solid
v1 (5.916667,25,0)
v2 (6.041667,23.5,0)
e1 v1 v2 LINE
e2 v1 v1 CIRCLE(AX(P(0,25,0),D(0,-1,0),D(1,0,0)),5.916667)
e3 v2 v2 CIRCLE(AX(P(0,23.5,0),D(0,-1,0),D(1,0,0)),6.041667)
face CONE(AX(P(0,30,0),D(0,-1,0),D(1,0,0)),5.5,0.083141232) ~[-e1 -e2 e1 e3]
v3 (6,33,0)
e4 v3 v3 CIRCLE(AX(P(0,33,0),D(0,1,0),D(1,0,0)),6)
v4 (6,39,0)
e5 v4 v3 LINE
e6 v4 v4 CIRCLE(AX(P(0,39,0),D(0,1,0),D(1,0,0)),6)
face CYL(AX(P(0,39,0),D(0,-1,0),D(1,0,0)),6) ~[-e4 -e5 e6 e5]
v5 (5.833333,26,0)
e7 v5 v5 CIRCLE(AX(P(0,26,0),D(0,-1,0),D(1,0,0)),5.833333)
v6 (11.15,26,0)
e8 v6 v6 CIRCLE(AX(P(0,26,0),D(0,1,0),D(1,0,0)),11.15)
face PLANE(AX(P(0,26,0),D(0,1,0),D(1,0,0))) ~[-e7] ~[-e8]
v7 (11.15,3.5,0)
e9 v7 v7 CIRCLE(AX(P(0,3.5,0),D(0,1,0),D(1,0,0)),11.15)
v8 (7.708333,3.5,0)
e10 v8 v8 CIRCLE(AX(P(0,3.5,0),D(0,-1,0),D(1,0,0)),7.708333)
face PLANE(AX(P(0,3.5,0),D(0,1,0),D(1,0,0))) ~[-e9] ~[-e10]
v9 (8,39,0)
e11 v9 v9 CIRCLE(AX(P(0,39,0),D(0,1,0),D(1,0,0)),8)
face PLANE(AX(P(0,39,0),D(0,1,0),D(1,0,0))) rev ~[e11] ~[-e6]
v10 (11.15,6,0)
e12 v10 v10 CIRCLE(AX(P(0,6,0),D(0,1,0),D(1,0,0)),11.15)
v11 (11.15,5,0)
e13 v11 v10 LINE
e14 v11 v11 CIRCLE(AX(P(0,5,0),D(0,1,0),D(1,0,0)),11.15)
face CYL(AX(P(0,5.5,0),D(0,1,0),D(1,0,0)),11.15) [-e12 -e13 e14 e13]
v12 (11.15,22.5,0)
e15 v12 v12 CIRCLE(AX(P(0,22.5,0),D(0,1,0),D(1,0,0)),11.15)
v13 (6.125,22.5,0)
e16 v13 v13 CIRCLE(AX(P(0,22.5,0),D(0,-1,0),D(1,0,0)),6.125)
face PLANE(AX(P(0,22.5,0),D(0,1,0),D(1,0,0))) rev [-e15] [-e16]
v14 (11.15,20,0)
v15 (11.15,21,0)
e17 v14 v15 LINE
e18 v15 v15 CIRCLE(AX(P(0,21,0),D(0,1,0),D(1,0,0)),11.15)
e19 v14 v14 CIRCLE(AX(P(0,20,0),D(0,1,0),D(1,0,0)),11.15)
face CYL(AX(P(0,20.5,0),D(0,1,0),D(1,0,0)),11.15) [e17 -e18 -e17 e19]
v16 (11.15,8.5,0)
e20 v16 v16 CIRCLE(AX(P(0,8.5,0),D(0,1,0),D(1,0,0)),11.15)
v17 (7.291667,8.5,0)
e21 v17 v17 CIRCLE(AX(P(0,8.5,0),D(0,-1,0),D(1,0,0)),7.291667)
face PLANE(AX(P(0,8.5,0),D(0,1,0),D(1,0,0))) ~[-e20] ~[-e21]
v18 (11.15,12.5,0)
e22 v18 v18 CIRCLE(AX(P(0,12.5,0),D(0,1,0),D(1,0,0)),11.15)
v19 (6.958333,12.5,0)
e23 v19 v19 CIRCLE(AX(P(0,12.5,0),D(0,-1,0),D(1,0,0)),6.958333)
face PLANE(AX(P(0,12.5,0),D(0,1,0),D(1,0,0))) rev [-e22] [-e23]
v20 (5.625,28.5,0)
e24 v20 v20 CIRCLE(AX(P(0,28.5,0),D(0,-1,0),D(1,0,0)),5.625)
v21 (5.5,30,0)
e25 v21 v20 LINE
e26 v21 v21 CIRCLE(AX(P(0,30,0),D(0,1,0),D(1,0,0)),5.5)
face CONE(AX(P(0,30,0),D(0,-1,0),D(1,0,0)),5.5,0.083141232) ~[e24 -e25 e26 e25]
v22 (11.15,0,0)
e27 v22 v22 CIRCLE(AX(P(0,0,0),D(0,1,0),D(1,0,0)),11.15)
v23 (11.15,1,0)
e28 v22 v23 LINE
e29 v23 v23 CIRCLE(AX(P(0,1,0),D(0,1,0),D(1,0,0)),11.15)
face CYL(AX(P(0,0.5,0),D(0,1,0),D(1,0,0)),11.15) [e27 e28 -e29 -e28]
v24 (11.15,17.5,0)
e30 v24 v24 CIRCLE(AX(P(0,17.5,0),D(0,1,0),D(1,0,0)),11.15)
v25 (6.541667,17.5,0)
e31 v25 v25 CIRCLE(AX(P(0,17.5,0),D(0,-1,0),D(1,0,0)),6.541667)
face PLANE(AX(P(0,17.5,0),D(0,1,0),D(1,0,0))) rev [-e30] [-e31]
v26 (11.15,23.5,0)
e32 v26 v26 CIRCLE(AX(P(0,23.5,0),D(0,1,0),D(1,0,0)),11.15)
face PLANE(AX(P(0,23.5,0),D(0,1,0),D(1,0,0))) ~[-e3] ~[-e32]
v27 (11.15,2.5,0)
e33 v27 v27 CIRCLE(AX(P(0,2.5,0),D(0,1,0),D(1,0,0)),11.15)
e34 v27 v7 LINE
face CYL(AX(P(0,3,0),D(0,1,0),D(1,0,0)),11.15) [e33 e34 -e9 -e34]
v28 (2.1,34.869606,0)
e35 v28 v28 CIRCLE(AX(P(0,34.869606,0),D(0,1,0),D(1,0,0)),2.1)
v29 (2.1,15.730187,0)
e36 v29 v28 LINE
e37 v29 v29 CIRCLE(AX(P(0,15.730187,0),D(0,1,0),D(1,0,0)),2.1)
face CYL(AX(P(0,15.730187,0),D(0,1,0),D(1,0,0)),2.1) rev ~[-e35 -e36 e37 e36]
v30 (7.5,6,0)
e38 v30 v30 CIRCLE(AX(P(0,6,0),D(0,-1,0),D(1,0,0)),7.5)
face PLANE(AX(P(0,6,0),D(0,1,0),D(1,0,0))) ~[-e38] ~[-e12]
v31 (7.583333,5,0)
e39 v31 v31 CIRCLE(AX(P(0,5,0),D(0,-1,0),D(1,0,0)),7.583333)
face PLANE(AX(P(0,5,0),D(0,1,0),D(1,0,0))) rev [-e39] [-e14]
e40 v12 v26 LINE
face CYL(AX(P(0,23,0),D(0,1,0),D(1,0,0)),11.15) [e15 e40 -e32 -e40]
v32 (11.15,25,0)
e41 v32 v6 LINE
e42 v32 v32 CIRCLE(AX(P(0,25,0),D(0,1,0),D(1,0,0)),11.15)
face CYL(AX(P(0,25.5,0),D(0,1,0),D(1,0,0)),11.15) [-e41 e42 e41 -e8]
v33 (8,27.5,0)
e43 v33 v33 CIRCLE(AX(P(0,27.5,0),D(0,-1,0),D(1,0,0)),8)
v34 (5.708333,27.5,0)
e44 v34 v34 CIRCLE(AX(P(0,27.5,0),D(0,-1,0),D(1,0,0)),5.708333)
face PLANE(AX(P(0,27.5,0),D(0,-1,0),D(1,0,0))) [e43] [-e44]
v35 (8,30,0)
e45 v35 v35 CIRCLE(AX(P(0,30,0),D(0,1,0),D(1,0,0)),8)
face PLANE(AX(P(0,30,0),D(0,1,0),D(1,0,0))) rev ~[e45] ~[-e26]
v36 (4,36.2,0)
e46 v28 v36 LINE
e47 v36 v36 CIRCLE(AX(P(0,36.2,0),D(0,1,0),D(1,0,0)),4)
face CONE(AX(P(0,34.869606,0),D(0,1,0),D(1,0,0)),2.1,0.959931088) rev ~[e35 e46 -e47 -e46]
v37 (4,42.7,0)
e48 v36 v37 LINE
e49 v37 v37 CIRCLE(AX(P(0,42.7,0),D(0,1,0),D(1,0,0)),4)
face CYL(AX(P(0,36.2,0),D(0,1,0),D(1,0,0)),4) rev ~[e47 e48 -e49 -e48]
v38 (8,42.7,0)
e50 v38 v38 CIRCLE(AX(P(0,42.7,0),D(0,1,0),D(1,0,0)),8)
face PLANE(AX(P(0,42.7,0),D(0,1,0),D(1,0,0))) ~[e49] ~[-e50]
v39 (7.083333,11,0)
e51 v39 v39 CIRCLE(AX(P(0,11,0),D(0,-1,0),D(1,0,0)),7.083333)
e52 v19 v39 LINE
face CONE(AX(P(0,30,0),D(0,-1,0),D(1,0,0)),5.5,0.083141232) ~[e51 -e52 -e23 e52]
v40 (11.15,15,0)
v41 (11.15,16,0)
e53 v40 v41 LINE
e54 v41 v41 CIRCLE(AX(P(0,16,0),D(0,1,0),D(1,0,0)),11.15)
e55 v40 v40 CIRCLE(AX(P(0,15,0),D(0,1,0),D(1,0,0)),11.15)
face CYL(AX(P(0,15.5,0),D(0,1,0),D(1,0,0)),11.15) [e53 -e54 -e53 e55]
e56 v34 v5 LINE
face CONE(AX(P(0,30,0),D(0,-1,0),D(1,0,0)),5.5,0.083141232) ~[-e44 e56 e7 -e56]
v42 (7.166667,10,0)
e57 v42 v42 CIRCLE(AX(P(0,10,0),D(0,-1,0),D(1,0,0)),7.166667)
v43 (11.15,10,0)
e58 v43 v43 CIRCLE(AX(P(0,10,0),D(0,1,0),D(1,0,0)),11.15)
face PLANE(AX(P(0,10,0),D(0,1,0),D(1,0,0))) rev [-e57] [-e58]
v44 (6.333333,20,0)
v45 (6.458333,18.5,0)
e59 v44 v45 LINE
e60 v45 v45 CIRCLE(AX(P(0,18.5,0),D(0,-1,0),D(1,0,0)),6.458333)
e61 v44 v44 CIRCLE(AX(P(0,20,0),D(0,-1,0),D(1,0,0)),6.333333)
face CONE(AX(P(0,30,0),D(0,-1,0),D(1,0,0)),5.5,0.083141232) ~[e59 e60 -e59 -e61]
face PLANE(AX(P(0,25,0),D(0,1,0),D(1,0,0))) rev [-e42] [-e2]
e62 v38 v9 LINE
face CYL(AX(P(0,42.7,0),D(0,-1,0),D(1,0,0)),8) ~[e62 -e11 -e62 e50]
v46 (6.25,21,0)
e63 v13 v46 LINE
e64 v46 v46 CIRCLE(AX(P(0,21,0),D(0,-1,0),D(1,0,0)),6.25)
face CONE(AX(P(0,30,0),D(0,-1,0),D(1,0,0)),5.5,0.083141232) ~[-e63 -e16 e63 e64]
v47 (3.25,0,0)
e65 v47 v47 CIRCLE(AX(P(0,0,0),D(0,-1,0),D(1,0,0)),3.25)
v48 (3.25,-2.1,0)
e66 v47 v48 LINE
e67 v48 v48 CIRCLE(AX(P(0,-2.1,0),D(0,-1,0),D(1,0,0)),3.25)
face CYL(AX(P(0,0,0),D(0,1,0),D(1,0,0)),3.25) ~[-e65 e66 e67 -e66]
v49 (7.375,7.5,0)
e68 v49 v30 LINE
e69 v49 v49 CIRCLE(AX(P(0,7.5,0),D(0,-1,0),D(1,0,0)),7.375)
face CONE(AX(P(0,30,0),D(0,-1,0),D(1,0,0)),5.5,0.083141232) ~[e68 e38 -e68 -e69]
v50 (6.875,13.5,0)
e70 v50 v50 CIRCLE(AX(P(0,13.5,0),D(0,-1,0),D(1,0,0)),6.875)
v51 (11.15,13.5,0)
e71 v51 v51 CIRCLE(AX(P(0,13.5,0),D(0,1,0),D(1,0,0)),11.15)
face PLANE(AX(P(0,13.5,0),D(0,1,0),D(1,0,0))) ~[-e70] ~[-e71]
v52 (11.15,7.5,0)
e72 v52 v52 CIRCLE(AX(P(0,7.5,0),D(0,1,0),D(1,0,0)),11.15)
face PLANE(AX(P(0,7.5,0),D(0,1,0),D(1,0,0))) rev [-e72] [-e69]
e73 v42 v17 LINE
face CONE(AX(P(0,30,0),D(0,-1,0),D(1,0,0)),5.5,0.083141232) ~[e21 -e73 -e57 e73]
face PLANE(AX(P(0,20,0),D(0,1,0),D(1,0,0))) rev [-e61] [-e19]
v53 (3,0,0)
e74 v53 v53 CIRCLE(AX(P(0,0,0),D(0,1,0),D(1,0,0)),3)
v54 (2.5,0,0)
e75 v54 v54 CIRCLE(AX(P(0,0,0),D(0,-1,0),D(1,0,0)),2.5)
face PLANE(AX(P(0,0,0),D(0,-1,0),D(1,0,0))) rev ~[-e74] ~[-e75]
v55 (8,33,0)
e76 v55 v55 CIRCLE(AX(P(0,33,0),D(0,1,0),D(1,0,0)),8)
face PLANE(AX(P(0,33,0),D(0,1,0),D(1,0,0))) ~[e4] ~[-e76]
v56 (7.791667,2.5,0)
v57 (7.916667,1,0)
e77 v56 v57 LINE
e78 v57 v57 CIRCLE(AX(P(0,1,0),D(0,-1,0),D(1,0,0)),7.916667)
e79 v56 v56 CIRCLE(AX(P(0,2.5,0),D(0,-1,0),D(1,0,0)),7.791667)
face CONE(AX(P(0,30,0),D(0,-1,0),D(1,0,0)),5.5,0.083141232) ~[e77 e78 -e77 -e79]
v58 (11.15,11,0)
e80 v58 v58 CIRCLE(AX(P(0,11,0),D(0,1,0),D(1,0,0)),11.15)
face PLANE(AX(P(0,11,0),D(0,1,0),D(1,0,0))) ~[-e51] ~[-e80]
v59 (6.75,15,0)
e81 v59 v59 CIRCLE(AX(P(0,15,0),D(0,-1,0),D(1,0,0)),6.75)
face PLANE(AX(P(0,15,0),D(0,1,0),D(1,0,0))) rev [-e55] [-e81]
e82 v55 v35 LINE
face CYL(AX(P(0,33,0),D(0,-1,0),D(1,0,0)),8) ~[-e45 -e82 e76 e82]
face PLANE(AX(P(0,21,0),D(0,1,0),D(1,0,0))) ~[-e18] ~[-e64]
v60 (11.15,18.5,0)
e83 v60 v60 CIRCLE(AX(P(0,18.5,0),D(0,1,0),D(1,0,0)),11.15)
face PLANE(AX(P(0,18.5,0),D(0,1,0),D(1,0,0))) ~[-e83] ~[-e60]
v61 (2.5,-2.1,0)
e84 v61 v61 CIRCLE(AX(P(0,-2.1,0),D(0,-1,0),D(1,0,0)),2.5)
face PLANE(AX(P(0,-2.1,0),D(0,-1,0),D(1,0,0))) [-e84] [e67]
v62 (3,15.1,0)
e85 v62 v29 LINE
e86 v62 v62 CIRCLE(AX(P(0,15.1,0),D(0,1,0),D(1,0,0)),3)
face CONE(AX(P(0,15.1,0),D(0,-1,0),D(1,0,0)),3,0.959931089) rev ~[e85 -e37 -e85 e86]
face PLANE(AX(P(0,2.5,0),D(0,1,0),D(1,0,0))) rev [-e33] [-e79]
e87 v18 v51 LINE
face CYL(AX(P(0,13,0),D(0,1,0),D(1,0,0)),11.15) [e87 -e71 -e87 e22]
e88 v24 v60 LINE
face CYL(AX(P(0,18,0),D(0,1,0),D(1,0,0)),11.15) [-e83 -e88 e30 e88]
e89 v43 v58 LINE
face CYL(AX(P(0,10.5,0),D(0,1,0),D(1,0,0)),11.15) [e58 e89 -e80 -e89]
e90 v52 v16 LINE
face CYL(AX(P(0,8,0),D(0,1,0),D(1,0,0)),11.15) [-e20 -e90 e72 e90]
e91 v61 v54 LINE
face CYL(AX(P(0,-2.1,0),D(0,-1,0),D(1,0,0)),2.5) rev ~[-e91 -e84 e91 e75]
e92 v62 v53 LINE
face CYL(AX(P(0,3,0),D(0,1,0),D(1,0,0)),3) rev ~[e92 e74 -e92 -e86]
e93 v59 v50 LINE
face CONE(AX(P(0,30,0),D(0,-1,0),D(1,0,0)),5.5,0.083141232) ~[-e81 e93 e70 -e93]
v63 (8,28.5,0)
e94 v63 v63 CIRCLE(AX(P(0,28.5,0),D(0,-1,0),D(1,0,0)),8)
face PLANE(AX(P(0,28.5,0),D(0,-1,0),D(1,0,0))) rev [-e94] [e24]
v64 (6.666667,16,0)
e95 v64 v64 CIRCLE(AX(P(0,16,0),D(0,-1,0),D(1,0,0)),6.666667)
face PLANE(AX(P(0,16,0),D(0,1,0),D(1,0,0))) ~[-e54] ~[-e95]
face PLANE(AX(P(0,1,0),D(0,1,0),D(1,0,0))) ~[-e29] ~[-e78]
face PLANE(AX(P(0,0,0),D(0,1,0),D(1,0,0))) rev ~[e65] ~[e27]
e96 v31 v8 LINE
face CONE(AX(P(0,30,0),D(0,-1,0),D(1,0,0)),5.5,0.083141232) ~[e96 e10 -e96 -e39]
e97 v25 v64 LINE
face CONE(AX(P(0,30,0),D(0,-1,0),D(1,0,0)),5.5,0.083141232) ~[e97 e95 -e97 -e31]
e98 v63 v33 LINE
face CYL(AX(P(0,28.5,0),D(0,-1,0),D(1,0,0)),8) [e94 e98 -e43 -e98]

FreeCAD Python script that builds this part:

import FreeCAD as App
import Part
import Sketcher
Q = App.Units.Quantity


def add_polygon(sketch, points):
    """Adds a closed chain of lines whose ends are joined by coincident constraints."""
    first, n = sketch.GeometryCount, len(points)
    for a, b in zip(points, points[1:] + points[:1]):
        sketch.addGeometry(Part.LineSegment(App.Vector(*a, 0), App.Vector(*b, 0)), False)
    for i in range(n):
        sketch.addConstraint(Sketcher.Constraint("Coincident", first + i, 2, first + (i + 1) % n, 1))

doc = App.newDocument("Part")
body = doc.addObject("PartDesign::Body", "Body")

# Sketch on XY plane
sketch1 = body.newObject("Sketcher::SketchObject", "Sketch")
sketch1.AttachmentSupport = (doc.getObject("XY_Plane"), [""])
sketch1.MapMode = "FlatFace"
add_polygon(sketch1, [(3, 15.1), (3, 0), (8, 0), (5.5, 30), (8, 30), (8, 33), (6, 33), (6, 39), (8, 39), (8, 42.7), (4, 42.7), (4, 36.2), (2.1, 34.9), (2.1, 15.7)])  # lines 0-13
sketch1.addConstraint([
    Sketcher.Constraint("Vertical", 0),
    Sketcher.Constraint("Horizontal", 1),
    Sketcher.Constraint("Horizontal", 3),
    Sketcher.Constraint("Vertical", 4),
    Sketcher.Constraint("Horizontal", 5),
    Sketcher.Constraint("Vertical", 6),
    Sketcher.Constraint("Horizontal", 7),
    Sketcher.Constraint("Vertical", 8),
    Sketcher.Constraint("Horizontal", 9),
    Sketcher.Constraint("Vertical", 10),
    Sketcher.Constraint("Vertical", 12),
    Sketcher.Constraint("PointOnObject", 0, 2, -1),
    Sketcher.Constraint("Vertical", 1, 2, 3, 2),
    Sketcher.Constraint("Vertical", 4, 2, 7, 2),
    Sketcher.Constraint("DistanceX", 1, 1, 1, 2, 5.0),
    Sketcher.Constraint("DistanceX", 5, 2, 5, 1, 2.0),
    Sketcher.Constraint("DistanceX", 9, 2, 9, 1, 4.0),
    Sketcher.Constraint("DistanceY", 4, 1, 4, 2, 3.0),
    Sketcher.Constraint("DistanceY", 6, 1, 6, 2, 6.0),
    Sketcher.Constraint("Angle", 11, Q("-145 deg")),
    Sketcher.Constraint("Angle", 13, Q("-35 deg")),
    Sketcher.Constraint("DistanceX", 3, 1, 3, 2, 2.5),
    Sketcher.Constraint("DistanceY", 0, 2, 0, 1, 15.1),
    Sketcher.Constraint("DistanceY", 8, 1, 8, 2, 3.7),
    Sketcher.Constraint("DistanceY", 10, 2, 10, 1, 6.5),
    Sketcher.Constraint("DistanceX", -1, 1, 0, 2, 3.0),
    Sketcher.Constraint("DistanceY", -1, 1, 2, 2, 30.0),
    Sketcher.Constraint("DistanceX", -1, 1, 11, 2, 2.1),
])
revolution = body.newObject("PartDesign::Revolution", "Revolution")
revolution.Profile = sketch1
revolution.ReferenceAxis = (sketch1, ["V_Axis"])
revolution.Angle = 360

# Sketch on XY plane
sketch2 = body.newObject("Sketcher::SketchObject", "Sketch001")
sketch2.AttachmentSupport = (doc.getObject("XY_Plane"), [""])
sketch2.MapMode = "FlatFace"
add_polygon(sketch2, [(3, 1), (3, 0), (11.2, 0), (11.2, 1)])  # lines 0-3
sketch2.addConstraint([
    Sketcher.Constraint("Vertical", 0),
    Sketcher.Constraint("Horizontal", 1),
    Sketcher.Constraint("Vertical", 2),
    Sketcher.Constraint("Horizontal", 3),
    Sketcher.Constraint("PointOnObject", 0, 2, -1),
    Sketcher.Constraint("DistanceY", 0, 2, 0, 1, 1.0),
    Sketcher.Constraint("DistanceX", -1, 1, 0, 2, 3.0),
    Sketcher.Constraint("DistanceX", 1, 1, 1, 2, 8.15),
])
revolution2 = body.newObject("PartDesign::Revolution", "Revolution001")
revolution2.Profile = sketch2
revolution2.ReferenceAxis = (sketch2, ["V_Axis"])
revolution2.Angle = 360
doc.recompute()

linearpattern = body.newObject("PartDesign::LinearPattern", "LinearPattern")
linearpattern.Originals = [revolution2]
linearpattern.Direction = (doc.getObject("Y_Axis"), [""])
linearpattern.Mode = "offset"
linearpattern.Offset = 2.5
linearpattern.Occurrences = 11
body.Tip = linearpattern

# Sketch on XY plane
sketch3 = body.newObject("Sketcher::SketchObject", "Sketch002")
sketch3.AttachmentSupport = (doc.getObject("XY_Plane"), [""])
sketch3.MapMode = "FlatFace"
add_polygon(sketch3, [(8, 28.5), (5.6, 28.5), (5.7, 27.5), (8, 27.5)])  # lines 0-3
sketch3.addConstraint([
    Sketcher.Constraint("Horizontal", 0),
    Sketcher.Constraint("Horizontal", 2),
    Sketcher.Constraint("Vertical", 3),
    Sketcher.Constraint("DistanceY", 3, 1, 3, 2, 1.0),
    Sketcher.Constraint("DistanceX", -1, 1, 2, 2, 8.0),
    Sketcher.Constraint("DistanceY", -1, 1, 0, 2, 28.5),
    Sketcher.Constraint("DistanceX", 0, 2, 0, 1, 2.375),
    Sketcher.Constraint("DistanceX", 2, 1, 2, 2, 2.291667),
])
revolution3 = body.newObject("PartDesign::Revolution", "Revolution002")
revolution3.Profile = sketch3
revolution3.ReferenceAxis = (sketch3, ["V_Axis"])
revolution3.Angle = 360

# Sketch on XZ plane
sketch4 = body.newObject("Sketcher::SketchObject", "Sketch003")
sketch4.AttachmentSupport = (doc.getObject("XZ_Plane"), [""])
sketch4.MapMode = "FlatFace"
sketch4.addGeometry(Part.Circle(App.Vector(0, 0, 0), App.Vector(0, 0, 1), 3.2), False)
sketch4.addConstraint([
    Sketcher.Constraint("Coincident", 0, 3, -1, 1),
    Sketcher.Constraint("Diameter", 0, 6.5),
])
pad1 = body.newObject("PartDesign::Pad", "Pad")
pad1.Profile = sketch4
pad1.Length = 2.1

# Sketch on XZ plane
sketch5 = body.newObject("Sketcher::SketchObject", "Sketch004")
sketch5.AttachmentSupport = (doc.getObject("XZ_Plane"), [""])
sketch5.MapMode = "FlatFace"
sketch5.AttachmentOffset = App.Placement(App.Vector(0, 0, 2.1), App.Rotation())
sketch5.addGeometry(Part.Circle(App.Vector(0, 0, 0), App.Vector(0, 0, 1), 2.5), False)
sketch5.addConstraint([
    Sketcher.Constraint("Coincident", 0, 3, -1, 1),
    Sketcher.Constraint("Diameter", 0, 5.0),
])
pocket1 = body.newObject("PartDesign::Pocket", "Pocket")
pocket1.Profile = sketch5
pocket1.Length = 2.1

doc.recompute()
